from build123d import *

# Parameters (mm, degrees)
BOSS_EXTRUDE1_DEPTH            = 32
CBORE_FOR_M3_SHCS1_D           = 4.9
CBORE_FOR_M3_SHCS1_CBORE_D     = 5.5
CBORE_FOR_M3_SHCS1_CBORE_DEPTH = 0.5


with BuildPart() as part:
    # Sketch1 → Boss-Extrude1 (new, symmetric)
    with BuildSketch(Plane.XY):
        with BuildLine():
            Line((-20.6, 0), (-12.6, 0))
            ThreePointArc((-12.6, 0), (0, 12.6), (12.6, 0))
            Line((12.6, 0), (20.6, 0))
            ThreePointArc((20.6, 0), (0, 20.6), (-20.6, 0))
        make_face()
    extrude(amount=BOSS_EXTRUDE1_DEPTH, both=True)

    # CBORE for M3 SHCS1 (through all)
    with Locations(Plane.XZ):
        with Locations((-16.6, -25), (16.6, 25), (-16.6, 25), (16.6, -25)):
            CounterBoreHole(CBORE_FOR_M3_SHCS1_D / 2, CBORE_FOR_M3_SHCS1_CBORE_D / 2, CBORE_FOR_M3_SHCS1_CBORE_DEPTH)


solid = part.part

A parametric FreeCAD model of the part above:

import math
import FreeCAD as App
import Part
import Sketcher

V = App.Vector

doc = App.newDocument("Part")
params = doc.addObject("Spreadsheet::Sheet", "Params")
for row, (alias, value) in enumerate([
    ("sketch1_radius", "12.6 mm"),
    ("sketch1_radius2", "20.6 mm"),
    ("pad1_length", "64 mm"),
    ("sketch2_diameter", "4.9 mm"),
    ("hole_diameter", "4.9 mm"),
    ("hole_cbore_diameter", "5.5 mm"),
    ("hole_cbore_depth", "0.5 mm"),
], start=1):
    params.set(f"A{row}", alias)
    params.set(f"B{row}", "=" + value)
    params.setAlias(f"B{row}", alias)

body = doc.addObject("PartDesign::Body", "Body")

sketch1 = body.newObject("Sketcher::SketchObject", "Sketch")
sketch1.AttachmentSupport = (doc.getObject("XY_Plane"), [""])
sketch1.MapMode = "FlatFace"
sketch1.addGeometry(Part.LineSegment(V(-21, 0, 0), V(-13, 0, 0)), False)
sketch1.addGeometry(Part.ArcOfCircle(Part.Circle(V(0, 0, 0), V(0, 0, 1), 13), math.radians(0), math.radians(180)), False)
sketch1.addGeometry(Part.LineSegment(V(13, 0, 0), V(21, 0, 0)), False)
sketch1.addGeometry(Part.ArcOfCircle(Part.Circle(V(0, 0, 0), V(0, 0, 1), 21), math.radians(0), math.radians(180)), False)
sketch1.addConstraint(Sketcher.Constraint("Coincident", 0, 2, 1, 2))
sketch1.addConstraint(Sketcher.Constraint("Coincident", 1, 1, 2, 1))
sketch1.addConstraint(Sketcher.Constraint("Coincident", 2, 2, 3, 1))
sketch1.addConstraint(Sketcher.Constraint("Coincident", 3, 2, 0, 1))
sketch1.addConstraint(Sketcher.Constraint("Horizontal", 0))
sketch1.addConstraint(Sketcher.Constraint("Horizontal", 2))
sketch1.addConstraint(Sketcher.Constraint("Coincident", 1, 3, -1, 1))
sketch1.addConstraint(Sketcher.Constraint("Coincident", 3, 3, -1, 1))
sketch1.addConstraint(Sketcher.Constraint("PointOnObject", 0, 2, -1))
sketch1.addConstraint(Sketcher.Constraint("PointOnObject", 1, 1, -1))
sketch1.addConstraint(Sketcher.Constraint("Radius", 1, 12.6))
sketch1.addConstraint(Sketcher.Constraint("Radius", 3, 20.6))
sketch1.setExpression("Constraints[10]", "Params.sketch1_radius")
sketch1.setExpression("Constraints[11]", "Params.sketch1_radius2")
pad1 = body.newObject("PartDesign::Pad", "Pad")
pad1.Profile = sketch1
pad1.setExpression("Length", "Params.pad1_length")
pad1.Midplane = True

sketch2 = body.newObject("Sketcher::SketchObject", "Sketch001")
sketch2.AttachmentSupport = (doc.getObject("XZ_Plane"), [""])
sketch2.MapMode = "FlatFace"
sketch2.addGeometry(Part.Circle(V(-16.6, -25, 0), V(0, 0, 1), 2.5), False)
sketch2.addGeometry(Part.Circle(V(16.6, 25, 0), V(0, 0, 1), 2.5), False)
sketch2.addGeometry(Part.Circle(V(-16.6, 25, 0), V(0, 0, 1), 2.5), False)
sketch2.addGeometry(Part.Circle(V(16.6, -25, 0), V(0, 0, 1), 2.5), False)
sketch2.addConstraint(Sketcher.Constraint("Equal", 0, 1))
sketch2.addConstraint(Sketcher.Constraint("Equal", 1, 2))
sketch2.addConstraint(Sketcher.Constraint("Equal", 2, 3))
sketch2.addConstraint(Sketcher.Constraint("Symmetric", 0, 3, 1, 3, -1, 1))
sketch2.addConstraint(Sketcher.Constraint("Symmetric", 2, 3, 3, 3, -1, 1))
sketch2.addConstraint(Sketcher.Constraint("Symmetric", 1, 3, 2, 3, -2))
sketch2.addConstraint(Sketcher.Constraint("Diameter", 0, 4.9))
sketch2.addConstraint(Sketcher.Constraint("DistanceY", 0, 3, -1, 1, 25.0))
sketch2.addConstraint(Sketcher.Constraint("DistanceX", 0, 3, -1, 1, 16.6))
sketch2.setExpression("Constraints[6]", "Params.sketch2_diameter")
doc.recompute()
hole = body.newObject("PartDesign::Hole", "Hole")
hole.Profile = sketch2
hole.ThreadType = "None"
hole.setExpression("Diameter", "Params.hole_diameter")
hole.DepthType = "ThroughAll"
hole.HoleCutType = "Counterbore"
hole.setExpression("HoleCutDiameter", "Params.hole_cbore_diameter")
hole.setExpression("HoleCutDepth", "Params.hole_cbore_depth")

doc.recompute()
